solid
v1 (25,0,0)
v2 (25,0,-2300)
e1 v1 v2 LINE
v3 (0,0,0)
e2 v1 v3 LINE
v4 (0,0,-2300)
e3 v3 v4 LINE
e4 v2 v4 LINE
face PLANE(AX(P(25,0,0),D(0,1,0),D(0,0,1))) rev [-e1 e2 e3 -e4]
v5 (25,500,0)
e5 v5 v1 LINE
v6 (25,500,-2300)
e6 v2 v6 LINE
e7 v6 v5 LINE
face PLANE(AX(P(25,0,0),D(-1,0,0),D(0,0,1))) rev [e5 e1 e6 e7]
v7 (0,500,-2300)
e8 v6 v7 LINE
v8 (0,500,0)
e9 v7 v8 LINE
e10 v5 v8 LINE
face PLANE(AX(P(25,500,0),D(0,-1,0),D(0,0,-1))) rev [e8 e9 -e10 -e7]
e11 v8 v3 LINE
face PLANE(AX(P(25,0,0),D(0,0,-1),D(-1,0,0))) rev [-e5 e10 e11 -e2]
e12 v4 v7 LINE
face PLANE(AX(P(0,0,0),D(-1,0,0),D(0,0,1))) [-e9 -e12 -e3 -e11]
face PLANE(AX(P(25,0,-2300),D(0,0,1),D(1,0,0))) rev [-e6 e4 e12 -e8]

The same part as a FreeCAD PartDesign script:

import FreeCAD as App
import Part
import Sketcher

V = App.Vector
Q = App.Units.Quantity


def add_polygon(sketch, points):
    """Adds a closed chain of lines whose ends are joined by coincident constraints."""
    first, n = sketch.GeometryCount, len(points)
    for a, b in zip(points, points[1:] + points[:1]):
        sketch.addGeometry(Part.LineSegment(App.Vector(*a, 0), App.Vector(*b, 0)), False)
    for i in range(n):
        sketch.addConstraint(Sketcher.Constraint("Coincident", first + i, 2, first + (i + 1) % n, 1))

doc = App.newDocument("Part")
body = doc.addObject("PartDesign::Body", "Body")

sketch1 = body.newObject("Sketcher::SketchObject", "Sketch")
sketch1.AttachmentSupport = (doc.getObject("YZ_Plane"), [""])
sketch1.MapMode = "FlatFace"
add_polygon(sketch1, [(500, 0), (0, 0), (0, -2300), (500, -2300)])
sketch1.addConstraint([
    Sketcher.Constraint("Horizontal", 0),
    Sketcher.Constraint("Vertical", 1),
    Sketcher.Constraint("Horizontal", 2),
    Sketcher.Constraint("Vertical", 3),
    Sketcher.Constraint("Coincident", 0, 2, -1, 1),
    Sketcher.Constraint("DistanceX", 0, 2, 0, 1, Q("500 mm")),
    Sketcher.Constraint("DistanceY", 1, 2, 1, 1, Q("2300 mm")),
])
pad1 = body.newObject("PartDesign::Pad", "Pad")
pad1.Profile = sketch1
pad1.Length = 25

doc.recompute()
